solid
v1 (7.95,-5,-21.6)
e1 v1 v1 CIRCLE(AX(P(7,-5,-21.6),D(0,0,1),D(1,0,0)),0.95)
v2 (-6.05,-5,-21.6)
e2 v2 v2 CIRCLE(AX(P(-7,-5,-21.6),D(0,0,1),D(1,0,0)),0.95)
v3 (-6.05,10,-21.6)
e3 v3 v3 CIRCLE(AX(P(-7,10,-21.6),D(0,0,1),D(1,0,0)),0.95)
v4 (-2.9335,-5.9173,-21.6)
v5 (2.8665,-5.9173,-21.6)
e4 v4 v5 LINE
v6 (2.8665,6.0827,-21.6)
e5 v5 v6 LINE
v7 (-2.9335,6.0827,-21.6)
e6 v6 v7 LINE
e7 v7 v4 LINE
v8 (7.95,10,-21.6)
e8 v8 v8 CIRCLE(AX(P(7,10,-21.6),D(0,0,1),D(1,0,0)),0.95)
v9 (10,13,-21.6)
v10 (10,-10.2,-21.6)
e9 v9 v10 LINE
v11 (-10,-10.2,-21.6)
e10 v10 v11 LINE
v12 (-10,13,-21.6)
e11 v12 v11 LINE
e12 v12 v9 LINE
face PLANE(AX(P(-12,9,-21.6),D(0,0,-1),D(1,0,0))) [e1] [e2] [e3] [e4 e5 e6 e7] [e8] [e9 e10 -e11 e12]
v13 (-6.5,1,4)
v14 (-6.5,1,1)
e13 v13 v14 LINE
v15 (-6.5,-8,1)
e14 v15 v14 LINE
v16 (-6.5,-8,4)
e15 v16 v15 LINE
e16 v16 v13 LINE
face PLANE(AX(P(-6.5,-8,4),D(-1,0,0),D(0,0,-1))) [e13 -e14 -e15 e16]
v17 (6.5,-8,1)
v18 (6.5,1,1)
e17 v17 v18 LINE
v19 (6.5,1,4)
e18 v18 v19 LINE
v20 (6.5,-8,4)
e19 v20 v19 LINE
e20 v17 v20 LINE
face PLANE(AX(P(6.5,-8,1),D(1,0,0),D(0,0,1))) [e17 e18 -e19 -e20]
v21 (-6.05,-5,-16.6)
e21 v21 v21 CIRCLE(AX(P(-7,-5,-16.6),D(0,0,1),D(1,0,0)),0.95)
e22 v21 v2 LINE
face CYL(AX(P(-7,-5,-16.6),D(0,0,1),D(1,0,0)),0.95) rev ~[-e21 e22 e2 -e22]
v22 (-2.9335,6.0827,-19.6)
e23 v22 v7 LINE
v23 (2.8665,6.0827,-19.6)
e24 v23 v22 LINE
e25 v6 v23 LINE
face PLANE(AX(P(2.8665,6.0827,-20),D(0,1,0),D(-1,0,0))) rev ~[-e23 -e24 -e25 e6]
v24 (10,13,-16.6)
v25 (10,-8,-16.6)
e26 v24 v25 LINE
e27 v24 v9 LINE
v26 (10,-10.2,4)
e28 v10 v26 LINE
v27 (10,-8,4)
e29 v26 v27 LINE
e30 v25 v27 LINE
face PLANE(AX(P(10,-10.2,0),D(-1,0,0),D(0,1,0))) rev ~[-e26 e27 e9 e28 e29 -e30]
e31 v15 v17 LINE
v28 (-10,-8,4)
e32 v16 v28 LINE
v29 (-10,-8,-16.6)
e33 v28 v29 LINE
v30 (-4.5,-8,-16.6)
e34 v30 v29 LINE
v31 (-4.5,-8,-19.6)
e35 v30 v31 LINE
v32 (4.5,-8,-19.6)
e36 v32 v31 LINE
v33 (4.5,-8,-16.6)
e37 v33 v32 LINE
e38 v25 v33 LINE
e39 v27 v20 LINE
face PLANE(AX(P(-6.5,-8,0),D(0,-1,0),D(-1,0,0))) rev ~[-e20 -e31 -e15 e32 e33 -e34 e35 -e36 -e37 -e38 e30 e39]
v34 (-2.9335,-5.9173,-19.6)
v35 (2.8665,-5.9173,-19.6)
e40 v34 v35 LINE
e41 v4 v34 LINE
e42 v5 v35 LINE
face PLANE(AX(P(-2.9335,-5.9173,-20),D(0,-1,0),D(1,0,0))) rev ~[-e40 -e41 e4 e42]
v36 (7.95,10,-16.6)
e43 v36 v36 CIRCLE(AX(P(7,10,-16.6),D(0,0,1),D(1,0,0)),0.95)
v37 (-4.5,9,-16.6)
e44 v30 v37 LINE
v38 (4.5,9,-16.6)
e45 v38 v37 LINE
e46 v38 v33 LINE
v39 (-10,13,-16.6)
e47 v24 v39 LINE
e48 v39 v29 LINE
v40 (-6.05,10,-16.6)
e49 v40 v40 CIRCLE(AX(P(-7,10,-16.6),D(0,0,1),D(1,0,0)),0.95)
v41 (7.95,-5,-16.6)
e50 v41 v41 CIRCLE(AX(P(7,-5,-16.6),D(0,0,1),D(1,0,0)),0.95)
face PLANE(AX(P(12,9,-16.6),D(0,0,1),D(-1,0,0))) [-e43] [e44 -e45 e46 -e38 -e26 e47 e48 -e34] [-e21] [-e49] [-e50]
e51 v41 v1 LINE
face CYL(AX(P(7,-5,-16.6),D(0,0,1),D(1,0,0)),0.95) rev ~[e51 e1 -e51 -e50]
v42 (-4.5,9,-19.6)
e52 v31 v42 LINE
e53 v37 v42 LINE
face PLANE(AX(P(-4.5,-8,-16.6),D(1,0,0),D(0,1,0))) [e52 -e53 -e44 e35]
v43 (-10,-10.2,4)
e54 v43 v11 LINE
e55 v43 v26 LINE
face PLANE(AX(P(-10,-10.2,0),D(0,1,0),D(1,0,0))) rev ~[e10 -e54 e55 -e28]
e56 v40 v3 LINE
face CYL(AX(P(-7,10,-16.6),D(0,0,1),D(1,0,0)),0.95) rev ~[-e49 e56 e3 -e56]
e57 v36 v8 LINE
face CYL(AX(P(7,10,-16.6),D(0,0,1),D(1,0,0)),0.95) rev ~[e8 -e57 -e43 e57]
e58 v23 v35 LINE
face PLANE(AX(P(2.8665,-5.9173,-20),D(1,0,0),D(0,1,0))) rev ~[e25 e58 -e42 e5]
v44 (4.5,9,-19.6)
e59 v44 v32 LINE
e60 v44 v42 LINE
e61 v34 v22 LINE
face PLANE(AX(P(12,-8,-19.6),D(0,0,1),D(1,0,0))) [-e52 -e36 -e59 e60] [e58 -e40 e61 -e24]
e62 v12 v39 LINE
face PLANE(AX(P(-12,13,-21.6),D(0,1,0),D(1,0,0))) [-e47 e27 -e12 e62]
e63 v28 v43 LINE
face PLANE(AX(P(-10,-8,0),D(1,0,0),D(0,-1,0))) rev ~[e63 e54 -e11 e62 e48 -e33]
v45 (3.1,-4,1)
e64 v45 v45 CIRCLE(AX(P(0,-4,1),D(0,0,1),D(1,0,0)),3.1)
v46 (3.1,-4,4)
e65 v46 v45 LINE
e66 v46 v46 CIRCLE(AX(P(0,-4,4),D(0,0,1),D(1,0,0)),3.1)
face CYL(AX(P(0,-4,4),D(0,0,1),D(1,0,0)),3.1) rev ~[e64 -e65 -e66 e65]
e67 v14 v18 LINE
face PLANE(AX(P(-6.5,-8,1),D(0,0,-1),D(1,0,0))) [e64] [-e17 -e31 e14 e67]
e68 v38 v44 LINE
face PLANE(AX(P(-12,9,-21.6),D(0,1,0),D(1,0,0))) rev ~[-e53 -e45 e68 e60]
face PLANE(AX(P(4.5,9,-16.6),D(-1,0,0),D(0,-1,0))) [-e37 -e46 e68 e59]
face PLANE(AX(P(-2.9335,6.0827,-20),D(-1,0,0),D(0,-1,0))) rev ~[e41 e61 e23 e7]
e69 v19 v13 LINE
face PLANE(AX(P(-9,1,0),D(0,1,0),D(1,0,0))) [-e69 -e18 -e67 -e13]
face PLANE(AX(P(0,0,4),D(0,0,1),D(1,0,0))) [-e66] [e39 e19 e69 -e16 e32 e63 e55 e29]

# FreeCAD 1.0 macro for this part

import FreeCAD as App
import Part
import Sketcher

V = App.Vector

doc = App.newDocument("Part")
body = doc.addObject("PartDesign::Body", "Body")

# Sketch on XY plane
sketch1 = body.newObject("Sketcher::SketchObject", "Sketch")
sketch1.AttachmentSupport = (doc.getObject("XY_Plane"), [""])
sketch1.MapMode = "FlatFace"
sketch1.addGeometry([
    Part.LineSegment(V(9, 9, 0), V(-9, 9, 0)),
    Part.LineSegment(V(-9, 9, 0), V(-9, -9, 0)),
    Part.LineSegment(V(-9, -9, 0), V(9, -9, 0)),
    Part.LineSegment(V(9, -9, 0), V(9, 9, 0)),
], False)
sketch1.addConstraint([
    Sketcher.Constraint("Coincident", 0, 2, 1, 1),
    Sketcher.Constraint("Coincident", 1, 2, 2, 1),
    Sketcher.Constraint("Coincident", 2, 2, 3, 1),
    Sketcher.Constraint("Coincident", 3, 2, 0, 1),
    Sketcher.Constraint("Horizontal", 0),
    Sketcher.Constraint("Vertical", 1),
    Sketcher.Constraint("Horizontal", 2),
    Sketcher.Constraint("Vertical", 3),
    Sketcher.Constraint("Symmetric", 0, 2, 2, 2, -1, 1),
    Sketcher.Constraint("Equal", 2, 1),
    Sketcher.Constraint("DistanceX", 0, 2, 0, 1, 18.0),
])
pad1 = body.newObject("PartDesign::Pad", "Pad")
pad1.Profile = sketch1
pad1.Length = 20
pad1.Reversed = True

# Sketch on XZ plane
sketch2 = body.newObject("Sketcher::SketchObject", "Sketch001")
sketch2.AttachmentSupport = (doc.getObject("XZ_Plane"), [""])
sketch2.MapMode = "FlatFace"
sketch2.AttachmentOffset = App.Placement(V(0, 0, -9), App.Rotation())
sketch2.addGeometry([
    Part.LineSegment(V(8, -17, 0), V(-8, -17, 0)),
    Part.LineSegment(V(-8, -17, 0), V(-8, -3, 0)),
    Part.LineSegment(V(-8, -3, 0), V(8, -3, 0)),
    Part.LineSegment(V(8, -3, 0), V(8, -17, 0)),
], False)
sketch2.addConstraint([
    Sketcher.Constraint("Coincident", 0, 2, 1, 1),
    Sketcher.Constraint("Coincident", 1, 2, 2, 1),
    Sketcher.Constraint("Coincident", 2, 2, 3, 1),
    Sketcher.Constraint("Coincident", 3, 2, 0, 1),
    Sketcher.Constraint("Horizontal", 0),
    Sketcher.Constraint("Vertical", 1),
    Sketcher.Constraint("Horizontal", 2),
    Sketcher.Constraint("Vertical", 3),
    Sketcher.Constraint("DistanceY", 1, 2, -1, 1, 3.0),
    Sketcher.Constraint("DistanceX", 0, 2, 0, 1, 15.4),
    Sketcher.Constraint("DistanceY", 1, 1, 1, 2, 13.6),
    Sketcher.Constraint("DistanceX", 0, 2, -1, 1, 7.7),
])
pocket1 = body.newObject("PartDesign::Pocket", "Pocket")
pocket1.Profile = sketch2
pocket1.Length = 17
pocket1.Reversed = True

# Sketch on XY plane
sketch3 = body.newObject("Sketcher::SketchObject", "Sketch002")
sketch3.AttachmentSupport = (doc.getObject("XY_Plane"), [""])
sketch3.MapMode = "FlatFace"
sketch3.addGeometry(Part.Circle(V(0, -4, 0), V(0, 0, 1), 3.1), False)
sketch3.addConstraint([
    Sketcher.Constraint("PointOnObject", 0, 3, -2),
    Sketcher.Constraint("Diameter", 0, 6.2),
    Sketcher.Constraint("DistanceY", 0, 3, -1, 1, 4.0),
])
pocket2 = body.newObject("PartDesign::Pocket", "Pocket001")
pocket2.Profile = sketch3
pocket2.Length = 3

# Sketch on XZ plane
sketch4 = body.newObject("Sketcher::SketchObject", "Sketch003")
sketch4.AttachmentSupport = (doc.getObject("XZ_Plane"), [""])
sketch4.MapMode = "FlatFace"
sketch4.AttachmentOffset = App.Placement(V(0, 0, -9), App.Rotation())
sketch4.addGeometry([
    Part.LineSegment(V(7.7, -3, 0), V(-7.7, -3, 0)),  # 0
    Part.LineSegment(V(-7.7, -3, 0), V(-7.7, -16.6, 0)),  # 1
    Part.LineSegment(V(-7.7, -16.6, 0), V(-9, -16.6, 0)),  # 2
    Part.LineSegment(V(-9, -16.6, 0), V(-9, 0, 0)),  # 3
    Part.LineSegment(V(-9, 0, 0), V(9, 0, 0)),  # 4
    Part.LineSegment(V(9, 0, 0), V(9, -16.6, 0)),  # 5
    Part.LineSegment(V(9, -16.6, 0), V(7.7, -16.6, 0)),  # 6
    Part.LineSegment(V(7.7, -16.6, 0), V(7.7, -3, 0)),  # 7
], False)
sketch4.addConstraint([
    Sketcher.Constraint("Coincident", 0, 2, 1, 1),
    Sketcher.Constraint("Coincident", 1, 2, 2, 1),
    Sketcher.Constraint("Coincident", 2, 2, 3, 1),
    Sketcher.Constraint("Coincident", 3, 2, 4, 1),
    Sketcher.Constraint("Coincident", 4, 2, 5, 1),
    Sketcher.Constraint("Coincident", 5, 2, 6, 1),
    Sketcher.Constraint("Coincident", 6, 2, 7, 1),
    Sketcher.Constraint("Coincident", 7, 2, 0, 1),
    Sketcher.Constraint("Horizontal", 0),
    Sketcher.Constraint("Vertical", 1),
    Sketcher.Constraint("Horizontal", 2),
    Sketcher.Constraint("Vertical", 3),
    Sketcher.Constraint("Horizontal", 4),
    Sketcher.Constraint("Vertical", 5),
    Sketcher.Constraint("Horizontal", 6),
    Sketcher.Constraint("Vertical", 7),
    Sketcher.Constraint("Symmetric", 3, 2, 4, 2, -1, 1),
    Sketcher.Constraint("Symmetric", 1, 2, 6, 2, -2),
    Sketcher.Constraint("DistanceX", 4, 1, 4, 2, 18.0),
    Sketcher.Constraint("DistanceX", 0, 2, 0, 1, 15.4),
    Sketcher.Constraint("DistanceY", 1, 2, 1, 1, 13.6),
    Sketcher.Constraint("DistanceY", 3, 1, 3, 2, 16.6),
])
pocket3 = body.newObject("PartDesign::Pocket", "Pocket002")
pocket3.Profile = sketch4
pocket3.Length = 8
pocket3.Reversed = True

# Sketch on XY plane
sketch5 = body.newObject("Sketcher::SketchObject", "Sketch004")
sketch5.AttachmentSupport = (doc.getObject("XY_Plane"), [""])
sketch5.MapMode = "FlatFace"
sketch5.AttachmentOffset = App.Placement(V(0, 0, -20), App.Rotation())
sketch5.addGeometry([
    Part.LineSegment(V(3, -6, 0), V(-3, -6, 0)),
    Part.LineSegment(V(-3, -6, 0), V(-3, 6, 0)),
    Part.LineSegment(V(-3, 6, 0), V(3, 6, 0)),
    Part.LineSegment(V(3, 6, 0), V(3, -6, 0)),
], False)
sketch5.addConstraint([
    Sketcher.Constraint("Coincident", 0, 2, 1, 1),
    Sketcher.Constraint("Coincident", 1, 2, 2, 1),
    Sketcher.Constraint("Coincident", 2, 2, 3, 1),
    Sketcher.Constraint("Coincident", 3, 2, 0, 1),
    Sketcher.Constraint("Horizontal", 0),
    Sketcher.Constraint("Vertical", 1),
    Sketcher.Constraint("Horizontal", 2),
    Sketcher.Constraint("Vertical", 3),
    Sketcher.Constraint("DistanceY", 1, 1, 1, 2, 12.0),
    Sketcher.Constraint("DistanceX", 0, 2, 0, 1, 5.8),
    Sketcher.Constraint("DistanceX", 0, 2, -1, 1, 2.9335),
    Sketcher.Constraint("DistanceY", 0, 2, -1, 1, 5.9173),
])
pocket4 = body.newObject("PartDesign::Pocket", "Pocket003")
pocket4.Profile = sketch5
pocket4.Length = 8
pocket4.Reversed = True

# Sketch on YZ plane
sketch6 = body.newObject("Sketcher::SketchObject", "Sketch005")
sketch6.AttachmentSupport = (doc.getObject("YZ_Plane"), [""])
sketch6.MapMode = "FlatFace"
sketch6.AttachmentOffset = App.Placement(V(0, 0, 9), App.Rotation())
sketch6.addGeometry([
    Part.LineSegment(V(-8, -17, 0), V(1, -17, 0)),
    Part.LineSegment(V(1, -17, 0), V(1, -3, 0)),
    Part.LineSegment(V(1, -3, 0), V(-8, -3, 0)),
    Part.LineSegment(V(-8, -3, 0), V(-8, -17, 0)),
], False)
sketch6.addConstraint([
    Sketcher.Constraint("Coincident", 0, 2, 1, 1),
    Sketcher.Constraint("Coincident", 1, 2, 2, 1),
    Sketcher.Constraint("Coincident", 2, 2, 3, 1),
    Sketcher.Constraint("Coincident", 3, 2, 0, 1),
    Sketcher.Constraint("Horizontal", 0),
    Sketcher.Constraint("Vertical", 1),
    Sketcher.Constraint("Horizontal", 2),
    Sketcher.Constraint("Vertical", 3),
    Sketcher.Constraint("DistanceX", 0, 1, 0, 2, 9.0),
    Sketcher.Constraint("DistanceY", 1, 1, 1, 2, 13.6),
    Sketcher.Constraint("DistanceX", -1, 1, 0, 2, 1.0),
    Sketcher.Constraint("DistanceY", 1, 2, -1, 1, 3.0),
])
pocket5 = body.newObject("PartDesign::Pocket", "Pocket004")
pocket5.Profile = sketch6
pocket5.Length = 20

# Sketch on XY plane
sketch7 = body.newObject("Sketcher::SketchObject", "Sketch006")
sketch7.AttachmentSupport = (doc.getObject("XY_Plane"), [""])
sketch7.MapMode = "FlatFace"
sketch7.addGeometry([
    Part.LineSegment(V(9, -8, 0), V(9, 1, 0)),  # 0
    Part.LineSegment(V(9, 1, 0), V(6.5, 1, 0)),  # 1
    Part.LineSegment(V(6.5, 1, 0), V(6.5, -8, 0)),  # 2
    Part.LineSegment(V(6.5, -8, 0), V(9, -8, 0)),  # 3
    Part.LineSegment(V(-6.5, -8, 0), V(-6.5, 1, 0)),  # 4
    Part.LineSegment(V(-6.5, 1, 0), V(-9, 1, 0)),  # 5
    Part.LineSegment(V(-9, 1, 0), V(-9, -8, 0)),  # 6
    Part.LineSegment(V(-9, -8, 0), V(-6.5, -8, 0)),  # 7
], False)
sketch7.addConstraint([
    Sketcher.Constraint("Coincident", 0, 2, 1, 1),
    Sketcher.Constraint("Coincident", 1, 2, 2, 1),
    Sketcher.Constraint("Coincident", 2, 2, 3, 1),
    Sketcher.Constraint("Coincident", 3, 2, 0, 1),
    Sketcher.Constraint("Coincident", 4, 2, 5, 1),
    Sketcher.Constraint("Coincident", 5, 2, 6, 1),
    Sketcher.Constraint("Coincident", 6, 2, 7, 1),
    Sketcher.Constraint("Coincident", 7, 2, 4, 1),
    Sketcher.Constraint("Vertical", 0),
    Sketcher.Constraint("Horizontal", 1),
    Sketcher.Constraint("Vertical", 2),
    Sketcher.Constraint("Horizontal", 3),
    Sketcher.Constraint("Vertical", 4),
    Sketcher.Constraint("Horizontal", 5),
    Sketcher.Constraint("Vertical", 6),
    Sketcher.Constraint("Horizontal", 7),
    Sketcher.Constraint("Symmetric", 1, 2, 4, 2, -2),
    Sketcher.Constraint("Symmetric", 3, 2, 6, 2, -2),
    Sketcher.Constraint("DistanceX", 1, 2, 1, 1, 2.5),
    Sketcher.Constraint("DistanceY", 0, 1, 0, 2, 9.0),
    Sketcher.Constraint("DistanceX", -1, 1, 0, 2, 9.0),
    Sketcher.Constraint("DistanceY", -1, 1, 0, 2, 1.0),
])
pocket6 = body.newObject("PartDesign::Pocket", "Pocket005")
pocket6.Profile = sketch7
pocket6.Length = 5

# Sketch on XZ plane
sketch8 = body.newObject("Sketcher::SketchObject", "Sketch007")
sketch8.AttachmentSupport = (doc.getObject("XZ_Plane"), [""])
sketch8.MapMode = "FlatFace"
sketch8.AttachmentOffset = App.Placement(V(0, 0, 9), App.Rotation())
sketch8.addGeometry([
    Part.LineSegment(V(9, 0, 0), V(-9, 0, 0)),
    Part.LineSegment(V(-9, 0, 0), V(-9, -20, 0)),
    Part.LineSegment(V(-9, -20, 0), V(9, -20, 0)),
    Part.LineSegment(V(9, -20, 0), V(9, 0, 0)),
], False)
sketch8.addConstraint([
    Sketcher.Constraint("Coincident", 0, 2, 1, 1),
    Sketcher.Constraint("Coincident", 1, 2, 2, 1),
    Sketcher.Constraint("Coincident", 2, 2, 3, 1),
    Sketcher.Constraint("Coincident", 3, 2, 0, 1),
    Sketcher.Constraint("Horizontal", 0),
    Sketcher.Constraint("Vertical", 1),
    Sketcher.Constraint("Horizontal", 2),
    Sketcher.Constraint("Vertical", 3),
    Sketcher.Constraint("Symmetric", 0, 2, 3, 2, -1, 1),
    Sketcher.Constraint("DistanceX", 0, 2, 0, 1, 18.0),
    Sketcher.Constraint("DistanceY", 1, 2, 1, 1, 20.0),
])
pad2 = body.newObject("PartDesign::Pad", "Pad001")
pad2.Profile = sketch8
pad2.Length = 1.2

# Sketch on YZ plane
sketch9 = body.newObject("Sketcher::SketchObject", "Sketch008")
sketch9.AttachmentSupport = (doc.getObject("YZ_Plane"), [""])
sketch9.MapMode = "FlatFace"
sketch9.AttachmentOffset = App.Placement(V(0, 0, 9), App.Rotation())
sketch9.addGeometry([
    Part.LineSegment(V(-10.2, -20, 0), V(9, -20, 0)),  # 0
    Part.LineSegment(V(9, -20, 0), V(9, -16.6, 0)),  # 1
    Part.LineSegment(V(9, -16.6, 0), V(-8, -16.6, 0)),  # 2
    Part.LineSegment(V(-8, -16.6, 0), V(-8, 0, 0)),  # 3
    Part.LineSegment(V(-8, 0, 0), V(-10.2, 0, 0)),  # 4
    Part.LineSegment(V(-10.2, 0, 0), V(-10.2, -20, 0)),  # 5
], False)
sketch9.addConstraint([
    Sketcher.Constraint("Coincident", 0, 2, 1, 1),
    Sketcher.Constraint("Coincident", 1, 2, 2, 1),
    Sketcher.Constraint("Coincident", 2, 2, 3, 1),
    Sketcher.Constraint("Coincident", 3, 2, 4, 1),
    Sketcher.Constraint("Coincident", 4, 2, 5, 1),
    Sketcher.Constraint("Coincident", 5, 2, 0, 1),
    Sketcher.Constraint("Horizontal", 0),
    Sketcher.Constraint("Vertical", 1),
    Sketcher.Constraint("Horizontal", 2),
    Sketcher.Constraint("Vertical", 3),
    Sketcher.Constraint("Horizontal", 4),
    Sketcher.Constraint("Vertical", 5),
    Sketcher.Constraint("PointOnObject", 3, 2, -1),
    Sketcher.Constraint("DistanceX", 2, 2, 2, 1, 17.0),
    Sketcher.Constraint("DistanceY", 5, 2, 5, 1, 20.0),
    Sketcher.Constraint("DistanceX", 0, 1, 0, 2, 19.2),
    Sketcher.Constraint("DistanceY", 1, 1, 1, 2, 3.4),
    Sketcher.Constraint("DistanceX", -1, 1, 0, 2, 9.0),
])
pad3 = body.newObject("PartDesign::Pad", "Pad002")
pad3.Profile = sketch9
pad3.Length = 3

# Sketch on YZ plane
sketch10 = body.newObject("Sketcher::SketchObject", "Sketch009")
sketch10.AttachmentSupport = (doc.getObject("YZ_Plane"), [""])
sketch10.MapMode = "FlatFace"
sketch10.AttachmentOffset = App.Placement(V(0, 0, -9), App.Rotation())
sketch10.addGeometry([
    Part.LineSegment(V(-10.2, 0, 0), V(-8, 0, 0)),  # 0
    Part.LineSegment(V(-8, 0, 0), V(-8, -16.6, 0)),  # 1
    Part.LineSegment(V(-8, -16.6, 0), V(9, -16.6, 0)),  # 2
    Part.LineSegment(V(9, -16.6, 0), V(9, -20, 0)),  # 3
    Part.LineSegment(V(9, -20, 0), V(-10.2, -20, 0)),  # 4
    Part.LineSegment(V(-10.2, -20, 0), V(-10.2, 0, 0)),  # 5
], False)
sketch10.addConstraint([
    Sketcher.Constraint("Coincident", 0, 2, 1, 1),
    Sketcher.Constraint("Coincident", 1, 2, 2, 1),
    Sketcher.Constraint("Coincident", 2, 2, 3, 1),
    Sketcher.Constraint("Coincident", 3, 2, 4, 1),
    Sketcher.Constraint("Coincident", 4, 2, 5, 1),
    Sketcher.Constraint("Coincident", 5, 2, 0, 1),
    Sketcher.Constraint("Horizontal", 0),
    Sketcher.Constraint("Vertical", 1),
    Sketcher.Constraint("Horizontal", 2),
    Sketcher.Constraint("Vertical", 3),
    Sketcher.Constraint("Horizontal", 4),
    Sketcher.Constraint("Vertical", 5),
    Sketcher.Constraint("PointOnObject", 0, 2, -1),
    Sketcher.Constraint("DistanceY", 3, 2, 3, 1, 3.4),
    Sketcher.Constraint("DistanceX", 2, 1, 2, 2, 17.0),
    Sketcher.Constraint("DistanceY", 5, 1, 5, 2, 20.0),
    Sketcher.Constraint("DistanceX", 0, 1, 0, 2, 2.2),
    Sketcher.Constraint("DistanceX", 0, 2, -1, 1, 8.0),
])
pad4 = body.newObject("PartDesign::Pad", "Pad003")
pad4.Profile = sketch10
pad4.Length = 3
pad4.Reversed = True

# Sketch on XY plane
sketch11 = body.newObject("Sketcher::SketchObject", "Sketch010")
sketch11.AttachmentSupport = (doc.getObject("XY_Plane"), [""])
sketch11.MapMode = "FlatFace"
sketch11.AttachmentOffset = App.Placement(V(0, 0, -20), App.Rotation())
sketch11.addGeometry([
    Part.LineSegment(V(-12, 9, 0), V(12, 9, 0)),  # 0
    Part.LineSegment(V(12, 9, 0), V(12, -10, 0)),  # 1
    Part.LineSegment(V(12, -10, 0), V(-12, -10, 0)),  # 2
    Part.LineSegment(V(-12, -10, 0), V(-12, 9, 0)),  # 3
    Part.LineSegment(V(3, 6, 0), V(-3, 6, 0)),  # 4
    Part.LineSegment(V(-3, 6, 0), V(-3, -6, 0)),  # 5
    Part.LineSegment(V(-3, -6, 0), V(3, -6, 0)),  # 6
    Part.LineSegment(V(3, -6, 0), V(3, 6, 0)),  # 7
], False)
sketch11.addConstraint([
    Sketcher.Constraint("Coincident", 0, 2, 1, 1),
    Sketcher.Constraint("Coincident", 1, 2, 2, 1),
    Sketcher.Constraint("Coincident", 2, 2, 3, 1),
    Sketcher.Constraint("Coincident", 3, 2, 0, 1),
    Sketcher.Constraint("Coincident", 4, 2, 5, 1),
    Sketcher.Constraint("Coincident", 5, 2, 6, 1),
    Sketcher.Constraint("Coincident", 6, 2, 7, 1),
    Sketcher.Constraint("Coincident", 7, 2, 4, 1),
    Sketcher.Constraint("Horizontal", 0),
    Sketcher.Constraint("Vertical", 1),
    Sketcher.Constraint("Horizontal", 2),
    Sketcher.Constraint("Vertical", 3),
    Sketcher.Constraint("Horizontal", 4),
    Sketcher.Constraint("Vertical", 5),
    Sketcher.Constraint("Horizontal", 6),
    Sketcher.Constraint("Vertical", 7),
    Sketcher.Constraint("DistanceX", 0, 1, 0, 2, 24.0),
    Sketcher.Constraint("DistanceY", 5, 2, 5, 1, 12.0),
    Sketcher.Constraint("DistanceX", 4, 2, 4, 1, 5.8),
    Sketcher.Constraint("DistanceY", 1, 2, 1, 1, 19.2),
    Sketcher.Constraint("DistanceX", -1, 1, 0, 2, 12.0),
    Sketcher.Constraint("DistanceY", -1, 1, 0, 2, 9.0),
    Sketcher.Constraint("DistanceX", 4, 2, -1, 1, 2.9335),
    Sketcher.Constraint("DistanceY", -1, 1, 4, 2, 6.0827),
])
pad5 = body.newObject("PartDesign::Pad", "Pad004")
pad5.Profile = sketch11
pad5.Length = 1.6
pad5.Reversed = True

# Sketch on XY plane
sketch12 = body.newObject("Sketcher::SketchObject", "Sketch011")
sketch12.AttachmentSupport = (doc.getObject("XY_Plane"), [""])
sketch12.MapMode = "FlatFace"
sketch12.AttachmentOffset = App.Placement(V(0, 0, -16.6), App.Rotation())
sketch12.addGeometry([
    Part.LineSegment(V(-4, 9, 0), V(-4, -8, 0)),  # 0
    Part.LineSegment(V(-4, -8, 0), V(4, -8, 0)),  # 1
    Part.LineSegment(V(4, -8, 0), V(4, 9, 0)),  # 2
    Part.LineSegment(V(4, 9, 0), V(-4, 9, 0)),  # 3
    Part.LineSegment(V(-3, 6, 0), V(3, 6, 0)),  # 4
    Part.LineSegment(V(3, 6, 0), V(3, -6, 0)),  # 5
    Part.LineSegment(V(3, -6, 0), V(-3, -6, 0)),  # 6
    Part.LineSegment(V(-3, -6, 0), V(-3, 6, 0)),  # 7
], False)
sketch12.addConstraint([
    Sketcher.Constraint("Coincident", 0, 2, 1, 1),
    Sketcher.Constraint("Coincident", 1, 2, 2, 1),
    Sketcher.Constraint("Coincident", 2, 2, 3, 1),
    Sketcher.Constraint("Coincident", 3, 2, 0, 1),
    Sketcher.Constraint("Coincident", 4, 2, 5, 1),
    Sketcher.Constraint("Coincident", 5, 2, 6, 1),
    Sketcher.Constraint("Coincident", 6, 2, 7, 1),
    Sketcher.Constraint("Coincident", 7, 2, 4, 1),
    Sketcher.Constraint("Vertical", 0),
    Sketcher.Constraint("Horizontal", 1),
    Sketcher.Constraint("Vertical", 2),
    Sketcher.Constraint("Horizontal", 3),
    Sketcher.Constraint("Horizontal", 4),
    Sketcher.Constraint("Vertical", 5),
    Sketcher.Constraint("Horizontal", 6),
    Sketcher.Constraint("Vertical", 7),
    Sketcher.Constraint("DistanceX", 1, 1, 1, 2, 9.0),
    Sketcher.Constraint("DistanceY", -1, 1, 2, 2, 9.0),
    Sketcher.Constraint("DistanceY", 0, 2, 0, 1, 17.0),
    Sketcher.Constraint("DistanceY", 5, 2, 5, 1, 12.0),
    Sketcher.Constraint("DistanceX", 4, 1, 4, 2, 5.8),
    Sketcher.Constraint("DistanceX", 0, 2, -1, 1, 4.5),
    Sketcher.Constraint("DistanceX", -1, 1, 4, 2, 2.8665),
    Sketcher.Constraint("DistanceY", -1, 1, 4, 2, 6.0827),
])
pocket7 = body.newObject("PartDesign::Pocket", "Pocket006")
pocket7.Profile = sketch12
pocket7.Length = 3

# Sketch on XZ plane
sketch13 = body.newObject("Sketcher::SketchObject", "Sketch012")
sketch13.AttachmentSupport = (doc.getObject("XZ_Plane"), [""])
sketch13.MapMode = "FlatFace"
sketch13.AttachmentOffset = App.Placement(V(0, 0, -9), App.Rotation())
sketch13.addGeometry([
    Part.LineSegment(V(-12, -22, 0), V(-12, -17, 0)),
    Part.LineSegment(V(-12, -17, 0), V(12, -17, 0)),
    Part.LineSegment(V(12, -17, 0), V(12, -22, 0)),
    Part.LineSegment(V(12, -22, 0), V(-12, -22, 0)),
], False)
sketch13.addConstraint([
    Sketcher.Constraint("Coincident", 0, 2, 1, 1),
    Sketcher.Constraint("Coincident", 1, 2, 2, 1),
    Sketcher.Constraint("Coincident", 2, 2, 3, 1),
    Sketcher.Constraint("Coincident", 3, 2, 0, 1),
    Sketcher.Constraint("Vertical", 0),
    Sketcher.Constraint("Horizontal", 1),
    Sketcher.Constraint("Vertical", 2),
    Sketcher.Constraint("Horizontal", 3),
    Sketcher.Constraint("DistanceX", 1, 1, 1, 2, 24.0),
    Sketcher.Constraint("DistanceY", 0, 1, 0, 2, 5.0),
    Sketcher.Constraint("DistanceX", 0, 2, -1, 1, 12.0),
    Sketcher.Constraint("DistanceY", 0, 2, -1, 1, 16.6),
])
pad6 = body.newObject("PartDesign::Pad", "Pad005")
pad6.Profile = sketch13
pad6.Length = 4
pad6.Reversed = True

# Sketch on XY plane
sketch14 = body.newObject("Sketcher::SketchObject", "Sketch013")
sketch14.AttachmentSupport = (doc.getObject("XY_Plane"), [""])
sketch14.MapMode = "FlatFace"
sketch14.AttachmentOffset = App.Placement(V(0, 0, -16.6), App.Rotation())
sketch14.addGeometry([
    Part.Circle(V(-7, 10, 0), V(0, 0, 1), 0.9),
    Part.Circle(V(7, -5, 0), V(0, 0, 1), 0.9),
    Part.Circle(V(7, 10, 0), V(0, 0, 1), 0.9),
    Part.Circle(V(-7, -5, 0), V(0, 0, 1), 0.9),
], False)
sketch14.addConstraint([
    Sketcher.Constraint("Equal", 0, 1),
    Sketcher.Constraint("Equal", 1, 2),
    Sketcher.Constraint("Equal", 2, 3),
    Sketcher.Constraint("Symmetric", 0, 3, 2, 3, -2),
    Sketcher.Constraint("Symmetric", 1, 3, 3, 3, -2),
    Sketcher.Constraint("Vertical", 1, 3, 2, 3),
    Sketcher.Constraint("Diameter", 0, 1.9),
    Sketcher.Constraint("DistanceY", 1, 3, -1, 1, 5.0),
    Sketcher.Constraint("DistanceX", 0, 3, -1, 1, 7.0),
    Sketcher.Constraint("DistanceY", -1, 1, 0, 3, 10.0),
])
pocket8 = body.newObject("PartDesign::Pocket", "Pocket007")
pocket8.Profile = sketch14
pocket8.Length = 5

# Sketch on XZ plane
sketch15 = body.newObject("Sketcher::SketchObject", "Sketch014")
sketch15.AttachmentSupport = (doc.getObject("XZ_Plane"), [""])
sketch15.MapMode = "FlatFace"
sketch15.AttachmentOffset = App.Placement(V(0, 0, -13), App.Rotation())
sketch15.addGeometry([
    Part.LineSegment(V(-10, -21.6, 0), V(-12, -21.6, 0)),  # 0
    Part.LineSegment(V(-12, -21.6, 0), V(-12, 0, 0)),  # 1
    Part.LineSegment(V(-12, 0, 0), V(-10, 0, 0)),  # 2
    Part.LineSegment(V(-10, 0, 0), V(-10, -21.6, 0)),  # 3
    Part.LineSegment(V(12, -21.6, 0), V(10, -21.6, 0)),  # 4
    Part.LineSegment(V(10, -21.6, 0), V(10, 0, 0)),  # 5
    Part.LineSegment(V(10, 0, 0), V(12, 0, 0)),  # 6
    Part.LineSegment(V(12, 0, 0), V(12, -21.6, 0)),  # 7
], False)
sketch15.addConstraint([
    Sketcher.Constraint("Coincident", 0, 2, 1, 1),
    Sketcher.Constraint("Coincident", 1, 2, 2, 1),
    Sketcher.Constraint("Coincident", 2, 2, 3, 1),
    Sketcher.Constraint("Coincident", 3, 2, 0, 1),
    Sketcher.Constraint("Coincident", 4, 2, 5, 1),
    Sketcher.Constraint("Coincident", 5, 2, 6, 1),
    Sketcher.Constraint("Coincident", 6, 2, 7, 1),
    Sketcher.Constraint("Coincident", 7, 2, 4, 1),
    Sketcher.Constraint("Horizontal", 0),
    Sketcher.Constraint("Vertical", 1),
    Sketcher.Constraint("Horizontal", 2),
    Sketcher.Constraint("Vertical", 3),
    Sketcher.Constraint("Horizontal", 4),
    Sketcher.Constraint("Vertical", 5),
    Sketcher.Constraint("Horizontal", 6),
    Sketcher.Constraint("Vertical", 7),
    Sketcher.Constraint("Symmetric", 2, 2, 5, 2, -1, 1),
    Sketcher.Constraint("Symmetric", 1, 2, 6, 2, -2),
    Sketcher.Constraint("Horizontal", 3, 2, 4, 2),
    Sketcher.Constraint("DistanceX", 0, 2, 0, 1, 2.0),
    Sketcher.Constraint("DistanceY", 1, 1, 1, 2, 21.6),
    Sketcher.Constraint("DistanceX", 0, 2, -1, 1, 12.0),
])
pocket9 = body.newObject("PartDesign::Pocket", "Pocket008")
pocket9.Profile = sketch15
pocket9.Type = "ThroughAll"
pocket9.Reversed = True

# Sketch on XY plane
sketch16 = body.newObject("Sketcher::SketchObject", "Sketch015")
sketch16.AttachmentSupport = (doc.getObject("XY_Plane"), [""])
sketch16.MapMode = "FlatFace"
sketch16.addGeometry([
    Part.LineSegment(V(-10, -10.2, 0), V(10, -10.2, 0)),
    Part.LineSegment(V(10, -10.2, 0), V(10, -8, 0)),
    Part.LineSegment(V(10, -8, 0), V(-10, -8, 0)),
    Part.LineSegment(V(-10, -8, 0), V(-10, -10.2, 0)),
], False)
sketch16.addConstraint([
    Sketcher.Constraint("Coincident", 0, 2, 1, 1),
    Sketcher.Constraint("Coincident", 1, 2, 2, 1),
    Sketcher.Constraint("Coincident", 2, 2, 3, 1),
    Sketcher.Constraint("Coincident", 3, 2, 0, 1),
    Sketcher.Constraint("Horizontal", 0),
    Sketcher.Constraint("Vertical", 1),
    Sketcher.Constraint("Horizontal", 2),
    Sketcher.Constraint("Vertical", 3),
    Sketcher.Constraint("DistanceX", 0, 1, 0, 2, 20.0),
    Sketcher.Constraint("DistanceY", 1, 1, 1, 2, 2.2),
    Sketcher.Constraint("DistanceX", -1, 1, 0, 2, 10.0),
    Sketcher.Constraint("DistanceY", 1, 2, -1, 1, 8.0),
])
pad7 = body.newObject("PartDesign::Pad", "Pad006")
pad7.Profile = sketch16
pad7.Length = 4

# Sketch on XZ plane
sketch17 = body.newObject("Sketcher::SketchObject", "Sketch016")
sketch17.AttachmentSupport = (doc.getObject("XZ_Plane"), [""])
sketch17.MapMode = "FlatFace"
sketch17.AttachmentOffset = App.Placement(V(0, 0, 8), App.Rotation())
sketch17.addGeometry([
    Part.LineSegment(V(-6.5, 1, 0), V(-6.5, 4, 0)),
    Part.LineSegment(V(-6.5, 4, 0), V(6.5, 4, 0)),
    Part.LineSegment(V(6.5, 4, 0), V(6.5, 1, 0)),
    Part.LineSegment(V(6.5, 1, 0), V(-6.5, 1, 0)),
], False)
sketch17.addConstraint([
    Sketcher.Constraint("Coincident", 0, 2, 1, 1),
    Sketcher.Constraint("Coincident", 1, 2, 2, 1),
    Sketcher.Constraint("Coincident", 2, 2, 3, 1),
    Sketcher.Constraint("Coincident", 3, 2, 0, 1),
    Sketcher.Constraint("Vertical", 0),
    Sketcher.Constraint("Horizontal", 1),
    Sketcher.Constraint("Vertical", 2),
    Sketcher.Constraint("Horizontal", 3),
    Sketcher.Constraint("DistanceX", 1, 1, 1, 2, 13.0),
    Sketcher.Constraint("DistanceY", 0, 1, 0, 2, 3.0),
    Sketcher.Constraint("DistanceY", -1, 1, 0, 2, 4.0),
    Sketcher.Constraint("DistanceX", 0, 2, -1, 1, 6.5),
])
pad8 = body.newObject("PartDesign::Pad", "Pad007")
pad8.Profile = sketch17
pad8.Length = 9
pad8.Reversed = True

# Sketch on XY plane
sketch18 = body.newObject("Sketcher::SketchObject", "Sketch017")
sketch18.AttachmentSupport = (doc.getObject("XY_Plane"), [""])
sketch18.MapMode = "FlatFace"
sketch18.AttachmentOffset = App.Placement(V(0, 0, 4), App.Rotation())
sketch18.addGeometry(Part.Circle(V(0, -4, 0), V(0, 0, 1), 3.1), False)
sketch18.addConstraint([
    Sketcher.Constraint("PointOnObject", 0, 3, -2),
    Sketcher.Constraint("Diameter", 0, 6.2),
    Sketcher.Constraint("DistanceY", 0, 3, -1, 1, 4.0),
])
pocket10 = body.newObject("PartDesign::Pocket", "Pocket009")
pocket10.Profile = sketch18
pocket10.Length = 10

# Sketch on XZ plane
sketch19 = body.newObject("Sketcher::SketchObject", "Sketch018")
sketch19.AttachmentSupport = (doc.getObject("XZ_Plane"), [""])
sketch19.MapMode = "FlatFace"
sketch19.AttachmentOffset = App.Placement(V(0, 0, -1), App.Rotation())
sketch19.addGeometry([
    Part.LineSegment(V(6.5, -3, 0), V(-6.5, -3, 0)),
    Part.LineSegment(V(-6.5, -3, 0), V(-6.5, 0, 0)),
    Part.LineSegment(V(-6.5, 0, 0), V(6.5, 0, 0)),
    Part.LineSegment(V(6.5, 0, 0), V(6.5, -3, 0)),
], False)
sketch19.addConstraint([
    Sketcher.Constraint("Coincident", 0, 2, 1, 1),
    Sketcher.Constraint("Coincident", 1, 2, 2, 1),
    Sketcher.Constraint("Coincident", 2, 2, 3, 1),
    Sketcher.Constraint("Coincident", 3, 2, 0, 1),
    Sketcher.Constraint("Horizontal", 0),
    Sketcher.Constraint("Vertical", 1),
    Sketcher.Constraint("Horizontal", 2),
    Sketcher.Constraint("Vertical", 3),
    Sketcher.Constraint("Symmetric", 1, 2, 2, 2, -1, 1),
    Sketcher.Constraint("DistanceX", 0, 2, 0, 1, 13.0),
    Sketcher.Constraint("DistanceY", 1, 1, 1, 2, 3.0),
])
pocket11 = body.newObject("PartDesign::Pocket", "Pocket010")
pocket11.Profile = sketch19
pocket11.Length = 9
pocket11.Reversed = True

doc.recompute()
